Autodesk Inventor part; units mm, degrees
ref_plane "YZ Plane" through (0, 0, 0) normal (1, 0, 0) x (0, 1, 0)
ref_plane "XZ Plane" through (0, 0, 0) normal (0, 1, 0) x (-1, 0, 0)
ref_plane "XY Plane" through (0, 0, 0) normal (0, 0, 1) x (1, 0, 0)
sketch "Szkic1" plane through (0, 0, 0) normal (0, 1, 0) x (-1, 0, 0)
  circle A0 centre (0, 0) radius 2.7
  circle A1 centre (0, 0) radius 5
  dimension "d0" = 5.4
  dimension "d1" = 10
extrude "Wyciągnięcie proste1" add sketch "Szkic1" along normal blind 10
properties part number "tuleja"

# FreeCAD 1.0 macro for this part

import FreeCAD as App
import Part
import Sketcher

V = App.Vector

doc = App.newDocument("Part")
params = doc.addObject("Spreadsheet::Sheet", "Params")
for row, (alias, value) in enumerate([
    ("sketch1_diameter", "10 mm"),
    ("sketch1_diameter2", "5.4 mm"),
    ("pad1_length", "10 mm"),
], start=1):
    params.set(f"A{row}", alias)
    params.set(f"B{row}", "=" + value)
    params.setAlias(f"B{row}", alias)

body = doc.addObject("PartDesign::Body", "Body")

# Sketch on XZ plane
sketch1 = body.newObject("Sketcher::SketchObject", "Sketch")
sketch1.AttachmentSupport = (doc.getObject("XZ_Plane"), [""])
sketch1.MapMode = "FlatFace"
sketch1.addGeometry(Part.Circle(V(0, 0, 0), V(0, 0, 1), 5), False)
sketch1.addGeometry(Part.Circle(V(0, 0, 0), V(0, 0, 1), 2.7), False)
sketch1.addConstraint(Sketcher.Constraint("Coincident", 0, 3, -1, 1))
sketch1.addConstraint(Sketcher.Constraint("Coincident", 1, 3, -1, 1))
sketch1.addConstraint(Sketcher.Constraint("Diameter", 0, 10.0))
sketch1.addConstraint(Sketcher.Constraint("Diameter", 1, 5.4))
sketch1.setExpression("Constraints[2]", "Params.sketch1_diameter")
sketch1.setExpression("Constraints[3]", "Params.sketch1_diameter2")
pad1 = body.newObject("PartDesign::Pad", "Pad")
pad1.Profile = sketch1
pad1.setExpression("Length", "Params.pad1_length")
pad1.Reversed = True

doc.recompute()
